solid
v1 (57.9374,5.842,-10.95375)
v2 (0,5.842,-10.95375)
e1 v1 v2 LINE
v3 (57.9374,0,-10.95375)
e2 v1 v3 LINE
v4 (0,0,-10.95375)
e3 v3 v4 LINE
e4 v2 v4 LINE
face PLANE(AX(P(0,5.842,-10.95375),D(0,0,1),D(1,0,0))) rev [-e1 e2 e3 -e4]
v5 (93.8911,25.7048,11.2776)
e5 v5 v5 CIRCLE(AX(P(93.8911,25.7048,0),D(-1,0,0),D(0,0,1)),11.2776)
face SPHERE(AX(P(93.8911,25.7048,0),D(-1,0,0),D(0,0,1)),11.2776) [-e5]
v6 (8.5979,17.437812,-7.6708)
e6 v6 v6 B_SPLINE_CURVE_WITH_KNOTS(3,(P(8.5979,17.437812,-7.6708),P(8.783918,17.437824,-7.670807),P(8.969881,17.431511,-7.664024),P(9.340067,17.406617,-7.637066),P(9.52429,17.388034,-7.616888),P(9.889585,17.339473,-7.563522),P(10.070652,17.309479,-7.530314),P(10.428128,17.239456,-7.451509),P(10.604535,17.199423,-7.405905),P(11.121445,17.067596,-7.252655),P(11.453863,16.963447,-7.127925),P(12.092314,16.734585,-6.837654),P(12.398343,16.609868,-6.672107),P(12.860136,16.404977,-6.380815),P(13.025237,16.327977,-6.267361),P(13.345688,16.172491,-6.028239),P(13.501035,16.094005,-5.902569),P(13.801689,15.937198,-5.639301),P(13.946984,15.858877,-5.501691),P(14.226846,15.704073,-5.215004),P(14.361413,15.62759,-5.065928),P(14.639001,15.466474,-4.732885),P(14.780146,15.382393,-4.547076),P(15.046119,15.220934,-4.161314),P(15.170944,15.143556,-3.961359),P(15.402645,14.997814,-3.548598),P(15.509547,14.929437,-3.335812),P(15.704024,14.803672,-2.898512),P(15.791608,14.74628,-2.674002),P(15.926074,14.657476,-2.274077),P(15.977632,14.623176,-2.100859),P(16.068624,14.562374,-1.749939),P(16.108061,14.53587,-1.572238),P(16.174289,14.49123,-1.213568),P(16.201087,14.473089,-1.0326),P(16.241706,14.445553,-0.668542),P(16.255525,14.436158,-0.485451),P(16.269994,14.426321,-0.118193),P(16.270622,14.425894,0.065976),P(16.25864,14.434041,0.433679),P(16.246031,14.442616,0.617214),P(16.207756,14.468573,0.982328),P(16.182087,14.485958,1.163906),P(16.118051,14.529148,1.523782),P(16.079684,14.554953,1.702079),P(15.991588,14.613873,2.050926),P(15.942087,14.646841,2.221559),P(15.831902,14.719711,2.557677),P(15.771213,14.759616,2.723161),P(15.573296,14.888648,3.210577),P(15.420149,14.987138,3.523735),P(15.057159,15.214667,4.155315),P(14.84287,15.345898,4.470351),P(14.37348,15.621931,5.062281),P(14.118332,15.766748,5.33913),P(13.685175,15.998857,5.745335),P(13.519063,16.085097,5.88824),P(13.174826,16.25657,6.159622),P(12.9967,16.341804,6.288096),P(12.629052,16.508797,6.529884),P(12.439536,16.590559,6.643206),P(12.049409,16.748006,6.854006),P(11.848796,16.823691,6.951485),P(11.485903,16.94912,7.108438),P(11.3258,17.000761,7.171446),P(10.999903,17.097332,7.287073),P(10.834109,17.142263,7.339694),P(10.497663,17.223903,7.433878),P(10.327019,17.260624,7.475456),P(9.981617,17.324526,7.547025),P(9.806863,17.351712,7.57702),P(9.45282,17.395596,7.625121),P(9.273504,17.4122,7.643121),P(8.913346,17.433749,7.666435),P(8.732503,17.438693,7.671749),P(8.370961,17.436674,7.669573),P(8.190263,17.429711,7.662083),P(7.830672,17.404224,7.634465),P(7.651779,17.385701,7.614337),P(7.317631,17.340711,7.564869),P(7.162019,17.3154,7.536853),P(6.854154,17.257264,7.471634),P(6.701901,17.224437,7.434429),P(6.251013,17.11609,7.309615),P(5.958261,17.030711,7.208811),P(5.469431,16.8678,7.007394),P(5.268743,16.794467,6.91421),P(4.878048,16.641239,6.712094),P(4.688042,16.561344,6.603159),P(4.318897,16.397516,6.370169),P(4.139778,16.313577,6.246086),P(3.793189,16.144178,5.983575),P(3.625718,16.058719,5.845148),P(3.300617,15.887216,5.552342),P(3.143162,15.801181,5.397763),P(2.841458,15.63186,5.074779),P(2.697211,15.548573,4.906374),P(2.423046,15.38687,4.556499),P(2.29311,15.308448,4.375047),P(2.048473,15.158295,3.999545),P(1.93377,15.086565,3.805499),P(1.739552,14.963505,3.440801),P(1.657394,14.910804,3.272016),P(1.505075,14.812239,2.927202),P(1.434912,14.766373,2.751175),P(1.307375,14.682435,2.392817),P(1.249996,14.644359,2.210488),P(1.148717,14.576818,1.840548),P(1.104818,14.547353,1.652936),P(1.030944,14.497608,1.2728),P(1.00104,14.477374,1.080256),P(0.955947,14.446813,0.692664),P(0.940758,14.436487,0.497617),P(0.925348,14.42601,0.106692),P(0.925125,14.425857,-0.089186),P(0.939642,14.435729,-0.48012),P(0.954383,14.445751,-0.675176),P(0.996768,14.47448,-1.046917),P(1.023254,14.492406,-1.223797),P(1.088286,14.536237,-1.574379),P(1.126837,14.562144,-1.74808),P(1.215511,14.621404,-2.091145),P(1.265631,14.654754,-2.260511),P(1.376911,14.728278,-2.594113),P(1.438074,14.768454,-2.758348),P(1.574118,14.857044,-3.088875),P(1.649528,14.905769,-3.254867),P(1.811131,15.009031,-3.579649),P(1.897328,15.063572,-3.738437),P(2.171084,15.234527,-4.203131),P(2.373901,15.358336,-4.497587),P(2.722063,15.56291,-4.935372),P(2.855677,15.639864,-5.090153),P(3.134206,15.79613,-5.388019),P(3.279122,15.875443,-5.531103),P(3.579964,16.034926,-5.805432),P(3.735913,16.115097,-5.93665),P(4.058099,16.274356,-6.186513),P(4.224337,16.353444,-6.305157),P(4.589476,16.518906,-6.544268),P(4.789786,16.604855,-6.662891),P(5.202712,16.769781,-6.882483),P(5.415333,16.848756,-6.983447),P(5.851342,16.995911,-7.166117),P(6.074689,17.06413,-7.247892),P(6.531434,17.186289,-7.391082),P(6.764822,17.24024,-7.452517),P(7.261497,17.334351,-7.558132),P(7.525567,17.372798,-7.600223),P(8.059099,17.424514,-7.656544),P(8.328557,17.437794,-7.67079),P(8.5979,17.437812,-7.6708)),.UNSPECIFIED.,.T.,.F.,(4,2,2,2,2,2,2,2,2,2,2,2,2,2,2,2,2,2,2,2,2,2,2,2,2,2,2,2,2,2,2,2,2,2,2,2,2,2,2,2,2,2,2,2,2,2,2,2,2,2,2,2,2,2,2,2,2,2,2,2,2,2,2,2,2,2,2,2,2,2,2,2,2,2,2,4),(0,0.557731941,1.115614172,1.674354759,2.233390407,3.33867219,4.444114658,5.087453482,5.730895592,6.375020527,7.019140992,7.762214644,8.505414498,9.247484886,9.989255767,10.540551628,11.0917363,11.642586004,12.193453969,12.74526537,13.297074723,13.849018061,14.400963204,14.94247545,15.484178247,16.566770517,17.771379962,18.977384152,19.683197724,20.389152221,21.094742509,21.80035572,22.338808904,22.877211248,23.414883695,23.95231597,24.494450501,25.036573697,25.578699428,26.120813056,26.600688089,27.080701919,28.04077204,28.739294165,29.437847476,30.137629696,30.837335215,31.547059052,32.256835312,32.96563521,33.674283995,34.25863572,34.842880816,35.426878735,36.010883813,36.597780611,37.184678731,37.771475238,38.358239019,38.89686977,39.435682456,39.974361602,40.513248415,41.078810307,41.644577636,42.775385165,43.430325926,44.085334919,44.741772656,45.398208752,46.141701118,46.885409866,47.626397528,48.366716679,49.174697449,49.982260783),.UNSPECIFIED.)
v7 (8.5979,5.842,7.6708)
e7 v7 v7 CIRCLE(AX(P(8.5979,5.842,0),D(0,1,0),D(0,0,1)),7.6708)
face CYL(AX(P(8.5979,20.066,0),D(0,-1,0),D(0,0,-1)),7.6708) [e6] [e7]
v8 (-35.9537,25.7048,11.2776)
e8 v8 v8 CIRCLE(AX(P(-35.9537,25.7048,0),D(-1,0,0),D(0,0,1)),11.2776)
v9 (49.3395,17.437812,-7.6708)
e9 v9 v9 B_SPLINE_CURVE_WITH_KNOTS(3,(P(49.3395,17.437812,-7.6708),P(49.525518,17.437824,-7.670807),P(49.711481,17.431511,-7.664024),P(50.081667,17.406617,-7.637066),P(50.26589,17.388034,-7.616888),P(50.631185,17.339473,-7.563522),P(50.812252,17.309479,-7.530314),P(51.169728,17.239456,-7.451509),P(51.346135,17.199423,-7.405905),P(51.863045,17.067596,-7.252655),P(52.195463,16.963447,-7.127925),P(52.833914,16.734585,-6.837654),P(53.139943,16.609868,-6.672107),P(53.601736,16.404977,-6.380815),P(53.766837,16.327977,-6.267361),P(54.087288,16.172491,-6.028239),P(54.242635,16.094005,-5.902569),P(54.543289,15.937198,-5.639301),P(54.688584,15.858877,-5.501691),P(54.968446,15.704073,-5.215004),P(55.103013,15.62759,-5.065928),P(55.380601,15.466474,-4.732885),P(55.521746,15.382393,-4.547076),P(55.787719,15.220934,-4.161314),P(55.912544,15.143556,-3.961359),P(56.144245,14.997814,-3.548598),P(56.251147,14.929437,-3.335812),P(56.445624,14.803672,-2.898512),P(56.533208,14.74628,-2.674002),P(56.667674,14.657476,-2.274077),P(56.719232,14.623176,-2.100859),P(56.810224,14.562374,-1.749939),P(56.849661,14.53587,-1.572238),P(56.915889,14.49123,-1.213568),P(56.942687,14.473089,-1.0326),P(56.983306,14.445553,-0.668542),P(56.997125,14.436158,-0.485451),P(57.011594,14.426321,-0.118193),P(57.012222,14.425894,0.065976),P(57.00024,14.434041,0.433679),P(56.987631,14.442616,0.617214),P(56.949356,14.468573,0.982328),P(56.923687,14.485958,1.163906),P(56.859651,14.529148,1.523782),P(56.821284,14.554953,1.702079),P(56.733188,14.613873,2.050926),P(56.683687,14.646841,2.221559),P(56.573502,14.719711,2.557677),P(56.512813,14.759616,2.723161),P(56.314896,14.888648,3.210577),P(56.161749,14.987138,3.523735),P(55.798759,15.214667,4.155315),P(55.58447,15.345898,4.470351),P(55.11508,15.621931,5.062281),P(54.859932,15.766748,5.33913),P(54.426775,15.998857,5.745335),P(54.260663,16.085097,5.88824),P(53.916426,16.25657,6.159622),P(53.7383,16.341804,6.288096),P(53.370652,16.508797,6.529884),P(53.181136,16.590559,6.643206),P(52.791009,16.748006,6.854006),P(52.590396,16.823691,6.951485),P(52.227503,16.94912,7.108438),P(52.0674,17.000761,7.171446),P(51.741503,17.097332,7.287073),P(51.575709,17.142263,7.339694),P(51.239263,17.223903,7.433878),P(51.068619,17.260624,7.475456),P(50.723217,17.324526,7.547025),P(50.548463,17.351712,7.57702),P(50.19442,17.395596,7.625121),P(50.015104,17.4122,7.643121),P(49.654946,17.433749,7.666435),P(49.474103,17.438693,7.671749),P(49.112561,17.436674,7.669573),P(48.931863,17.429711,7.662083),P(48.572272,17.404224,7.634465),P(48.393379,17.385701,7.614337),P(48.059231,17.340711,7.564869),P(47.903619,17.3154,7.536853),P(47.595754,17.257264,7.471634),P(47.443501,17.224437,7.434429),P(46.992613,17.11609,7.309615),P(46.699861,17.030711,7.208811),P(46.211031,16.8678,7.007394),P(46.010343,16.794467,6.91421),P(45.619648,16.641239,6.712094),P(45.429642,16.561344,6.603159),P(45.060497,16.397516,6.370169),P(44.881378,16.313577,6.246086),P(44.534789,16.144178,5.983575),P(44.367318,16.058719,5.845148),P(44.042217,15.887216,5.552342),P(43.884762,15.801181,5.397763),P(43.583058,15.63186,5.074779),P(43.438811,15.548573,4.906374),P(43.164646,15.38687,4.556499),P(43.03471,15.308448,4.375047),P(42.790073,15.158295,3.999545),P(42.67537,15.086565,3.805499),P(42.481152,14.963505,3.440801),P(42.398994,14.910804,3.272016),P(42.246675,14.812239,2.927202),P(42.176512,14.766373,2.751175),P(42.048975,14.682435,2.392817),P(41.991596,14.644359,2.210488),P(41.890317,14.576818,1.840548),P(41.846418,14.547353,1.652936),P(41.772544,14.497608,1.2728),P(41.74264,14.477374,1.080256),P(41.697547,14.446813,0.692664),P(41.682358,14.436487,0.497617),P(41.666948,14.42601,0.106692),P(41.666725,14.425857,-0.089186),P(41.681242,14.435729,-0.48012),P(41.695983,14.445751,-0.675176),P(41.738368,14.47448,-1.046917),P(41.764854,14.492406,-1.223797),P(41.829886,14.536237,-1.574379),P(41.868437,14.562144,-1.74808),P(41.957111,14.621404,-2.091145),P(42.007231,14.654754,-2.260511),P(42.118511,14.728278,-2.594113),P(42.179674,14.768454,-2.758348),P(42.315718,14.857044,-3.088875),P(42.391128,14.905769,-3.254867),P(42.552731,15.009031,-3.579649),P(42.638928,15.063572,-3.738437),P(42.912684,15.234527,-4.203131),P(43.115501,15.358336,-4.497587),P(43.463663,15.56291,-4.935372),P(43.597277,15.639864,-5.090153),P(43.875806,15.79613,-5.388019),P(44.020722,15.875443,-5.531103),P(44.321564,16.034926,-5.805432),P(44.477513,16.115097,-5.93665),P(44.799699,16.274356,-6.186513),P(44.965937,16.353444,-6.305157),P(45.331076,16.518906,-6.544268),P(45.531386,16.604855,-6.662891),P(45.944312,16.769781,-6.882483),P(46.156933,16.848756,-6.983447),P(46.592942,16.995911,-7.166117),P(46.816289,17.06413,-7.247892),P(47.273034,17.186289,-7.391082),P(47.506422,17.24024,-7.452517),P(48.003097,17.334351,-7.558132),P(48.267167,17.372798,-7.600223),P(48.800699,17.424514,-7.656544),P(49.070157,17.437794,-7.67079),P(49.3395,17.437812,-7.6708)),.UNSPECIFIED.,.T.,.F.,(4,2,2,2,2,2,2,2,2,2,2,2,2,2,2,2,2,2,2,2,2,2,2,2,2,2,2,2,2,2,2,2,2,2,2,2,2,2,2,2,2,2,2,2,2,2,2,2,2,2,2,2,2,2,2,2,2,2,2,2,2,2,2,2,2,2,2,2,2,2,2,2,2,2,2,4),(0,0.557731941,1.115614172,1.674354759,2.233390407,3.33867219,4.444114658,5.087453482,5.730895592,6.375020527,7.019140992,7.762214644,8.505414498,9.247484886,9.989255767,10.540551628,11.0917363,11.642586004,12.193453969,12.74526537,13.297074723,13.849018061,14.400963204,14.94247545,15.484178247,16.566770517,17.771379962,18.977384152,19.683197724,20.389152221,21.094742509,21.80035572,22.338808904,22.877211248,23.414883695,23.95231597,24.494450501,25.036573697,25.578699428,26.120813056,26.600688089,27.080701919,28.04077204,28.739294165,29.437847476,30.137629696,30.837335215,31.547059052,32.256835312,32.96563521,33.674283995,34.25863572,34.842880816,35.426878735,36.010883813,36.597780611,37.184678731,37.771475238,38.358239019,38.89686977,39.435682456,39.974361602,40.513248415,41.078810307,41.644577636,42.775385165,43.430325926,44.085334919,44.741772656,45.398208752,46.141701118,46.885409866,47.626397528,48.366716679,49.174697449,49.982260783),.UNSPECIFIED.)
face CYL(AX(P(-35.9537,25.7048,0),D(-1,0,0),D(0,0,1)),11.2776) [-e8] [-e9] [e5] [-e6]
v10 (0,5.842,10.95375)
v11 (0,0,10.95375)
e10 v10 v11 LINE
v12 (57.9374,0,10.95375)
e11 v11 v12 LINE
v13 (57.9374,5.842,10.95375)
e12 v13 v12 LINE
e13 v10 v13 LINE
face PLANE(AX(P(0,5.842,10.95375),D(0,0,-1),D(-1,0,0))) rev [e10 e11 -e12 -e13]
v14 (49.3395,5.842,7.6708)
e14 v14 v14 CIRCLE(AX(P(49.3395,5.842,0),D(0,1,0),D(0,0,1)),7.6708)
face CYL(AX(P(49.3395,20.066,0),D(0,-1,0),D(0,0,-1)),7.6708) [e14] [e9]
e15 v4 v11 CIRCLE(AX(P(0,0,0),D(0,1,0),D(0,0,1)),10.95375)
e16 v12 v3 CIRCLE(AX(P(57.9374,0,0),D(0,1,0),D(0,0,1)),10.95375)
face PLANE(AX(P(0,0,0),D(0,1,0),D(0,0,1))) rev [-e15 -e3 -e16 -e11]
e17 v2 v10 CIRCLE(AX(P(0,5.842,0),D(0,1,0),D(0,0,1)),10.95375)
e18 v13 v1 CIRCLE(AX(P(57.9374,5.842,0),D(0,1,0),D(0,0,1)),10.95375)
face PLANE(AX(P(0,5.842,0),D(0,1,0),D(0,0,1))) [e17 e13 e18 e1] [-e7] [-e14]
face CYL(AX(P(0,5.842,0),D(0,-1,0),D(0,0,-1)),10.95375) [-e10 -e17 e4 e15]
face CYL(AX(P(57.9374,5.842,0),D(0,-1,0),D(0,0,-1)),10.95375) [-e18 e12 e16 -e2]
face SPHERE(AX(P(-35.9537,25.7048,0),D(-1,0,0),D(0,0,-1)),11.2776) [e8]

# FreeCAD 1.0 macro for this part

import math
import FreeCAD as App
import Part
import Sketcher
from FreeCAD import Vector
Q = App.Units.Quantity

doc = App.newDocument("Part")
body = doc.addObject("PartDesign::Body", "Body")

sketch1 = body.newObject("Sketcher::SketchObject", "Sketch")
sketch1.AttachmentSupport = (doc.getObject("XZ_Plane"), [""])
sketch1.MapMode = "FlatFace"
sketch1.addGeometry(Part.LineSegment(Vector(58, -11, 0), Vector(0, -11, 0)), False)
sketch1.addGeometry(Part.ArcOfCircle(Part.Circle(Vector(0, 0, 0), Vector(0, 0, 1), 11), math.radians(90), math.radians(270)), False)
sketch1.addGeometry(Part.LineSegment(Vector(0, 11, 0), Vector(58, 11, 0)), False)
sketch1.addGeometry(Part.ArcOfCircle(Part.Circle(Vector(58, 0, 0), Vector(0, 0, 1), 11), math.radians(-90), math.radians(90)), False)
sketch1.addConstraint(Sketcher.Constraint("Tangent", 0, 2, 1, 2))
sketch1.addConstraint(Sketcher.Constraint("Tangent", 1, 1, 2, 1))
sketch1.addConstraint(Sketcher.Constraint("Tangent", 2, 2, 3, 2))
sketch1.addConstraint(Sketcher.Constraint("Tangent", 3, 1, 0, 1))
sketch1.addConstraint(Sketcher.Constraint("Horizontal", 0))
sketch1.addConstraint(Sketcher.Constraint("Horizontal", 2))
sketch1.addConstraint(Sketcher.Constraint("Coincident", 1, 3, -1, 1))
sketch1.addConstraint(Sketcher.Constraint("DistanceX", 0, 2, 0, 1, Q("2.281 in")))
sketch1.addConstraint(Sketcher.Constraint("Radius", 1, 10.95375))
pad1 = body.newObject("PartDesign::Pad", "Pad")
pad1.Profile = sketch1
pad1.Length = Q("0.23 in")
pad1.Reversed = True

sketch2 = body.newObject("Sketcher::SketchObject", "Sketch001")
sketch2.AttachmentSupport = (doc.getObject("XZ_Plane"), [""])
sketch2.MapMode = "FlatFace"
sketch2.AttachmentOffset = App.Placement(Vector(0, 0, -0.23 * 25.4), App.Rotation())
sketch2.addGeometry(Part.Circle(Vector(9, 0, 0), Vector(0, 0, 1), 8), False)
sketch2.addGeometry(Part.Circle(Vector(49, 0, 0), Vector(0, 0, 1), 8), False)
sketch2.addConstraint(Sketcher.Constraint("Equal", 0, 1))
sketch2.addConstraint(Sketcher.Constraint("PointOnObject", 0, 3, -1))
sketch2.addConstraint(Sketcher.Constraint("PointOnObject", 1, 3, -1))
sketch2.addConstraint(Sketcher.Constraint("Diameter", 0, Q("0.604 in")))
sketch2.addConstraint(Sketcher.Constraint("DistanceX", 0, 3, 1, 3, Q("1.604 in")))
sketch2.addConstraint(Sketcher.Constraint("DistanceX", -1, 1, 0, 3, Q("0.3385 in")))
pad2 = body.newObject("PartDesign::Pad", "Pad001")
pad2.Profile = sketch2
pad2.Length = Q("0.56 in")
pad2.Reversed = True

sketch3 = body.newObject("Sketcher::SketchObject", "Sketch002")
sketch3.AttachmentSupport = (doc.getObject("XZ_Plane"), [""])
sketch3.MapMode = "FlatFace"
sketch3.AttachmentOffset = App.Placement(Vector(0, 0, -1.012 * 25.4), App.Rotation())
sketch3.addGeometry(Part.LineSegment(Vector(-36, 11, 0), Vector(94, 11, 0)), False)
sketch3.addGeometry(Part.ArcOfCircle(Part.Circle(Vector(94, 0, 0), Vector(0, 0, 1), 11), math.radians(0), math.radians(90)), False)
sketch3.addGeometry(Part.LineSegment(Vector(105, 0, 0), Vector(-47, 0, 0)), False)
sketch3.addGeometry(Part.ArcOfCircle(Part.Circle(Vector(-36, 0, 0), Vector(0, 0, 1), 11), math.radians(90), math.radians(180)), False)
sketch3.addConstraint(Sketcher.Constraint("Tangent", 0, 2, 1, 2))
sketch3.addConstraint(Sketcher.Constraint("Coincident", 1, 1, 2, 1))
sketch3.addConstraint(Sketcher.Constraint("Coincident", 2, 2, 3, 2))
sketch3.addConstraint(Sketcher.Constraint("Tangent", 3, 1, 0, 1))
sketch3.addConstraint(Sketcher.Constraint("Horizontal", 0))
sketch3.addConstraint(Sketcher.Constraint("Horizontal", 2))
sketch3.addConstraint(Sketcher.Constraint("Equal", 1, 3))
sketch3.addConstraint(Sketcher.Constraint("PointOnObject", 1, 3, -1))
sketch3.addConstraint(Sketcher.Constraint("PointOnObject", 1, 1, -1))
sketch3.addConstraint(Sketcher.Constraint("DistanceX", 2, 2, 2, 1, Q("6 in")))
sketch3.addConstraint(Sketcher.Constraint("Radius", 1, Q("0.444 in")))
sketch3.addConstraint(Sketcher.Constraint("DistanceX", -1, 1, 1, 3, Q("3.6965 in")))
revolution = body.newObject("PartDesign::Revolution", "Revolution")
revolution.Profile = sketch3
revolution.ReferenceAxis = (sketch3, ["H_Axis"])
revolution.Angle = 360

doc.recompute()
